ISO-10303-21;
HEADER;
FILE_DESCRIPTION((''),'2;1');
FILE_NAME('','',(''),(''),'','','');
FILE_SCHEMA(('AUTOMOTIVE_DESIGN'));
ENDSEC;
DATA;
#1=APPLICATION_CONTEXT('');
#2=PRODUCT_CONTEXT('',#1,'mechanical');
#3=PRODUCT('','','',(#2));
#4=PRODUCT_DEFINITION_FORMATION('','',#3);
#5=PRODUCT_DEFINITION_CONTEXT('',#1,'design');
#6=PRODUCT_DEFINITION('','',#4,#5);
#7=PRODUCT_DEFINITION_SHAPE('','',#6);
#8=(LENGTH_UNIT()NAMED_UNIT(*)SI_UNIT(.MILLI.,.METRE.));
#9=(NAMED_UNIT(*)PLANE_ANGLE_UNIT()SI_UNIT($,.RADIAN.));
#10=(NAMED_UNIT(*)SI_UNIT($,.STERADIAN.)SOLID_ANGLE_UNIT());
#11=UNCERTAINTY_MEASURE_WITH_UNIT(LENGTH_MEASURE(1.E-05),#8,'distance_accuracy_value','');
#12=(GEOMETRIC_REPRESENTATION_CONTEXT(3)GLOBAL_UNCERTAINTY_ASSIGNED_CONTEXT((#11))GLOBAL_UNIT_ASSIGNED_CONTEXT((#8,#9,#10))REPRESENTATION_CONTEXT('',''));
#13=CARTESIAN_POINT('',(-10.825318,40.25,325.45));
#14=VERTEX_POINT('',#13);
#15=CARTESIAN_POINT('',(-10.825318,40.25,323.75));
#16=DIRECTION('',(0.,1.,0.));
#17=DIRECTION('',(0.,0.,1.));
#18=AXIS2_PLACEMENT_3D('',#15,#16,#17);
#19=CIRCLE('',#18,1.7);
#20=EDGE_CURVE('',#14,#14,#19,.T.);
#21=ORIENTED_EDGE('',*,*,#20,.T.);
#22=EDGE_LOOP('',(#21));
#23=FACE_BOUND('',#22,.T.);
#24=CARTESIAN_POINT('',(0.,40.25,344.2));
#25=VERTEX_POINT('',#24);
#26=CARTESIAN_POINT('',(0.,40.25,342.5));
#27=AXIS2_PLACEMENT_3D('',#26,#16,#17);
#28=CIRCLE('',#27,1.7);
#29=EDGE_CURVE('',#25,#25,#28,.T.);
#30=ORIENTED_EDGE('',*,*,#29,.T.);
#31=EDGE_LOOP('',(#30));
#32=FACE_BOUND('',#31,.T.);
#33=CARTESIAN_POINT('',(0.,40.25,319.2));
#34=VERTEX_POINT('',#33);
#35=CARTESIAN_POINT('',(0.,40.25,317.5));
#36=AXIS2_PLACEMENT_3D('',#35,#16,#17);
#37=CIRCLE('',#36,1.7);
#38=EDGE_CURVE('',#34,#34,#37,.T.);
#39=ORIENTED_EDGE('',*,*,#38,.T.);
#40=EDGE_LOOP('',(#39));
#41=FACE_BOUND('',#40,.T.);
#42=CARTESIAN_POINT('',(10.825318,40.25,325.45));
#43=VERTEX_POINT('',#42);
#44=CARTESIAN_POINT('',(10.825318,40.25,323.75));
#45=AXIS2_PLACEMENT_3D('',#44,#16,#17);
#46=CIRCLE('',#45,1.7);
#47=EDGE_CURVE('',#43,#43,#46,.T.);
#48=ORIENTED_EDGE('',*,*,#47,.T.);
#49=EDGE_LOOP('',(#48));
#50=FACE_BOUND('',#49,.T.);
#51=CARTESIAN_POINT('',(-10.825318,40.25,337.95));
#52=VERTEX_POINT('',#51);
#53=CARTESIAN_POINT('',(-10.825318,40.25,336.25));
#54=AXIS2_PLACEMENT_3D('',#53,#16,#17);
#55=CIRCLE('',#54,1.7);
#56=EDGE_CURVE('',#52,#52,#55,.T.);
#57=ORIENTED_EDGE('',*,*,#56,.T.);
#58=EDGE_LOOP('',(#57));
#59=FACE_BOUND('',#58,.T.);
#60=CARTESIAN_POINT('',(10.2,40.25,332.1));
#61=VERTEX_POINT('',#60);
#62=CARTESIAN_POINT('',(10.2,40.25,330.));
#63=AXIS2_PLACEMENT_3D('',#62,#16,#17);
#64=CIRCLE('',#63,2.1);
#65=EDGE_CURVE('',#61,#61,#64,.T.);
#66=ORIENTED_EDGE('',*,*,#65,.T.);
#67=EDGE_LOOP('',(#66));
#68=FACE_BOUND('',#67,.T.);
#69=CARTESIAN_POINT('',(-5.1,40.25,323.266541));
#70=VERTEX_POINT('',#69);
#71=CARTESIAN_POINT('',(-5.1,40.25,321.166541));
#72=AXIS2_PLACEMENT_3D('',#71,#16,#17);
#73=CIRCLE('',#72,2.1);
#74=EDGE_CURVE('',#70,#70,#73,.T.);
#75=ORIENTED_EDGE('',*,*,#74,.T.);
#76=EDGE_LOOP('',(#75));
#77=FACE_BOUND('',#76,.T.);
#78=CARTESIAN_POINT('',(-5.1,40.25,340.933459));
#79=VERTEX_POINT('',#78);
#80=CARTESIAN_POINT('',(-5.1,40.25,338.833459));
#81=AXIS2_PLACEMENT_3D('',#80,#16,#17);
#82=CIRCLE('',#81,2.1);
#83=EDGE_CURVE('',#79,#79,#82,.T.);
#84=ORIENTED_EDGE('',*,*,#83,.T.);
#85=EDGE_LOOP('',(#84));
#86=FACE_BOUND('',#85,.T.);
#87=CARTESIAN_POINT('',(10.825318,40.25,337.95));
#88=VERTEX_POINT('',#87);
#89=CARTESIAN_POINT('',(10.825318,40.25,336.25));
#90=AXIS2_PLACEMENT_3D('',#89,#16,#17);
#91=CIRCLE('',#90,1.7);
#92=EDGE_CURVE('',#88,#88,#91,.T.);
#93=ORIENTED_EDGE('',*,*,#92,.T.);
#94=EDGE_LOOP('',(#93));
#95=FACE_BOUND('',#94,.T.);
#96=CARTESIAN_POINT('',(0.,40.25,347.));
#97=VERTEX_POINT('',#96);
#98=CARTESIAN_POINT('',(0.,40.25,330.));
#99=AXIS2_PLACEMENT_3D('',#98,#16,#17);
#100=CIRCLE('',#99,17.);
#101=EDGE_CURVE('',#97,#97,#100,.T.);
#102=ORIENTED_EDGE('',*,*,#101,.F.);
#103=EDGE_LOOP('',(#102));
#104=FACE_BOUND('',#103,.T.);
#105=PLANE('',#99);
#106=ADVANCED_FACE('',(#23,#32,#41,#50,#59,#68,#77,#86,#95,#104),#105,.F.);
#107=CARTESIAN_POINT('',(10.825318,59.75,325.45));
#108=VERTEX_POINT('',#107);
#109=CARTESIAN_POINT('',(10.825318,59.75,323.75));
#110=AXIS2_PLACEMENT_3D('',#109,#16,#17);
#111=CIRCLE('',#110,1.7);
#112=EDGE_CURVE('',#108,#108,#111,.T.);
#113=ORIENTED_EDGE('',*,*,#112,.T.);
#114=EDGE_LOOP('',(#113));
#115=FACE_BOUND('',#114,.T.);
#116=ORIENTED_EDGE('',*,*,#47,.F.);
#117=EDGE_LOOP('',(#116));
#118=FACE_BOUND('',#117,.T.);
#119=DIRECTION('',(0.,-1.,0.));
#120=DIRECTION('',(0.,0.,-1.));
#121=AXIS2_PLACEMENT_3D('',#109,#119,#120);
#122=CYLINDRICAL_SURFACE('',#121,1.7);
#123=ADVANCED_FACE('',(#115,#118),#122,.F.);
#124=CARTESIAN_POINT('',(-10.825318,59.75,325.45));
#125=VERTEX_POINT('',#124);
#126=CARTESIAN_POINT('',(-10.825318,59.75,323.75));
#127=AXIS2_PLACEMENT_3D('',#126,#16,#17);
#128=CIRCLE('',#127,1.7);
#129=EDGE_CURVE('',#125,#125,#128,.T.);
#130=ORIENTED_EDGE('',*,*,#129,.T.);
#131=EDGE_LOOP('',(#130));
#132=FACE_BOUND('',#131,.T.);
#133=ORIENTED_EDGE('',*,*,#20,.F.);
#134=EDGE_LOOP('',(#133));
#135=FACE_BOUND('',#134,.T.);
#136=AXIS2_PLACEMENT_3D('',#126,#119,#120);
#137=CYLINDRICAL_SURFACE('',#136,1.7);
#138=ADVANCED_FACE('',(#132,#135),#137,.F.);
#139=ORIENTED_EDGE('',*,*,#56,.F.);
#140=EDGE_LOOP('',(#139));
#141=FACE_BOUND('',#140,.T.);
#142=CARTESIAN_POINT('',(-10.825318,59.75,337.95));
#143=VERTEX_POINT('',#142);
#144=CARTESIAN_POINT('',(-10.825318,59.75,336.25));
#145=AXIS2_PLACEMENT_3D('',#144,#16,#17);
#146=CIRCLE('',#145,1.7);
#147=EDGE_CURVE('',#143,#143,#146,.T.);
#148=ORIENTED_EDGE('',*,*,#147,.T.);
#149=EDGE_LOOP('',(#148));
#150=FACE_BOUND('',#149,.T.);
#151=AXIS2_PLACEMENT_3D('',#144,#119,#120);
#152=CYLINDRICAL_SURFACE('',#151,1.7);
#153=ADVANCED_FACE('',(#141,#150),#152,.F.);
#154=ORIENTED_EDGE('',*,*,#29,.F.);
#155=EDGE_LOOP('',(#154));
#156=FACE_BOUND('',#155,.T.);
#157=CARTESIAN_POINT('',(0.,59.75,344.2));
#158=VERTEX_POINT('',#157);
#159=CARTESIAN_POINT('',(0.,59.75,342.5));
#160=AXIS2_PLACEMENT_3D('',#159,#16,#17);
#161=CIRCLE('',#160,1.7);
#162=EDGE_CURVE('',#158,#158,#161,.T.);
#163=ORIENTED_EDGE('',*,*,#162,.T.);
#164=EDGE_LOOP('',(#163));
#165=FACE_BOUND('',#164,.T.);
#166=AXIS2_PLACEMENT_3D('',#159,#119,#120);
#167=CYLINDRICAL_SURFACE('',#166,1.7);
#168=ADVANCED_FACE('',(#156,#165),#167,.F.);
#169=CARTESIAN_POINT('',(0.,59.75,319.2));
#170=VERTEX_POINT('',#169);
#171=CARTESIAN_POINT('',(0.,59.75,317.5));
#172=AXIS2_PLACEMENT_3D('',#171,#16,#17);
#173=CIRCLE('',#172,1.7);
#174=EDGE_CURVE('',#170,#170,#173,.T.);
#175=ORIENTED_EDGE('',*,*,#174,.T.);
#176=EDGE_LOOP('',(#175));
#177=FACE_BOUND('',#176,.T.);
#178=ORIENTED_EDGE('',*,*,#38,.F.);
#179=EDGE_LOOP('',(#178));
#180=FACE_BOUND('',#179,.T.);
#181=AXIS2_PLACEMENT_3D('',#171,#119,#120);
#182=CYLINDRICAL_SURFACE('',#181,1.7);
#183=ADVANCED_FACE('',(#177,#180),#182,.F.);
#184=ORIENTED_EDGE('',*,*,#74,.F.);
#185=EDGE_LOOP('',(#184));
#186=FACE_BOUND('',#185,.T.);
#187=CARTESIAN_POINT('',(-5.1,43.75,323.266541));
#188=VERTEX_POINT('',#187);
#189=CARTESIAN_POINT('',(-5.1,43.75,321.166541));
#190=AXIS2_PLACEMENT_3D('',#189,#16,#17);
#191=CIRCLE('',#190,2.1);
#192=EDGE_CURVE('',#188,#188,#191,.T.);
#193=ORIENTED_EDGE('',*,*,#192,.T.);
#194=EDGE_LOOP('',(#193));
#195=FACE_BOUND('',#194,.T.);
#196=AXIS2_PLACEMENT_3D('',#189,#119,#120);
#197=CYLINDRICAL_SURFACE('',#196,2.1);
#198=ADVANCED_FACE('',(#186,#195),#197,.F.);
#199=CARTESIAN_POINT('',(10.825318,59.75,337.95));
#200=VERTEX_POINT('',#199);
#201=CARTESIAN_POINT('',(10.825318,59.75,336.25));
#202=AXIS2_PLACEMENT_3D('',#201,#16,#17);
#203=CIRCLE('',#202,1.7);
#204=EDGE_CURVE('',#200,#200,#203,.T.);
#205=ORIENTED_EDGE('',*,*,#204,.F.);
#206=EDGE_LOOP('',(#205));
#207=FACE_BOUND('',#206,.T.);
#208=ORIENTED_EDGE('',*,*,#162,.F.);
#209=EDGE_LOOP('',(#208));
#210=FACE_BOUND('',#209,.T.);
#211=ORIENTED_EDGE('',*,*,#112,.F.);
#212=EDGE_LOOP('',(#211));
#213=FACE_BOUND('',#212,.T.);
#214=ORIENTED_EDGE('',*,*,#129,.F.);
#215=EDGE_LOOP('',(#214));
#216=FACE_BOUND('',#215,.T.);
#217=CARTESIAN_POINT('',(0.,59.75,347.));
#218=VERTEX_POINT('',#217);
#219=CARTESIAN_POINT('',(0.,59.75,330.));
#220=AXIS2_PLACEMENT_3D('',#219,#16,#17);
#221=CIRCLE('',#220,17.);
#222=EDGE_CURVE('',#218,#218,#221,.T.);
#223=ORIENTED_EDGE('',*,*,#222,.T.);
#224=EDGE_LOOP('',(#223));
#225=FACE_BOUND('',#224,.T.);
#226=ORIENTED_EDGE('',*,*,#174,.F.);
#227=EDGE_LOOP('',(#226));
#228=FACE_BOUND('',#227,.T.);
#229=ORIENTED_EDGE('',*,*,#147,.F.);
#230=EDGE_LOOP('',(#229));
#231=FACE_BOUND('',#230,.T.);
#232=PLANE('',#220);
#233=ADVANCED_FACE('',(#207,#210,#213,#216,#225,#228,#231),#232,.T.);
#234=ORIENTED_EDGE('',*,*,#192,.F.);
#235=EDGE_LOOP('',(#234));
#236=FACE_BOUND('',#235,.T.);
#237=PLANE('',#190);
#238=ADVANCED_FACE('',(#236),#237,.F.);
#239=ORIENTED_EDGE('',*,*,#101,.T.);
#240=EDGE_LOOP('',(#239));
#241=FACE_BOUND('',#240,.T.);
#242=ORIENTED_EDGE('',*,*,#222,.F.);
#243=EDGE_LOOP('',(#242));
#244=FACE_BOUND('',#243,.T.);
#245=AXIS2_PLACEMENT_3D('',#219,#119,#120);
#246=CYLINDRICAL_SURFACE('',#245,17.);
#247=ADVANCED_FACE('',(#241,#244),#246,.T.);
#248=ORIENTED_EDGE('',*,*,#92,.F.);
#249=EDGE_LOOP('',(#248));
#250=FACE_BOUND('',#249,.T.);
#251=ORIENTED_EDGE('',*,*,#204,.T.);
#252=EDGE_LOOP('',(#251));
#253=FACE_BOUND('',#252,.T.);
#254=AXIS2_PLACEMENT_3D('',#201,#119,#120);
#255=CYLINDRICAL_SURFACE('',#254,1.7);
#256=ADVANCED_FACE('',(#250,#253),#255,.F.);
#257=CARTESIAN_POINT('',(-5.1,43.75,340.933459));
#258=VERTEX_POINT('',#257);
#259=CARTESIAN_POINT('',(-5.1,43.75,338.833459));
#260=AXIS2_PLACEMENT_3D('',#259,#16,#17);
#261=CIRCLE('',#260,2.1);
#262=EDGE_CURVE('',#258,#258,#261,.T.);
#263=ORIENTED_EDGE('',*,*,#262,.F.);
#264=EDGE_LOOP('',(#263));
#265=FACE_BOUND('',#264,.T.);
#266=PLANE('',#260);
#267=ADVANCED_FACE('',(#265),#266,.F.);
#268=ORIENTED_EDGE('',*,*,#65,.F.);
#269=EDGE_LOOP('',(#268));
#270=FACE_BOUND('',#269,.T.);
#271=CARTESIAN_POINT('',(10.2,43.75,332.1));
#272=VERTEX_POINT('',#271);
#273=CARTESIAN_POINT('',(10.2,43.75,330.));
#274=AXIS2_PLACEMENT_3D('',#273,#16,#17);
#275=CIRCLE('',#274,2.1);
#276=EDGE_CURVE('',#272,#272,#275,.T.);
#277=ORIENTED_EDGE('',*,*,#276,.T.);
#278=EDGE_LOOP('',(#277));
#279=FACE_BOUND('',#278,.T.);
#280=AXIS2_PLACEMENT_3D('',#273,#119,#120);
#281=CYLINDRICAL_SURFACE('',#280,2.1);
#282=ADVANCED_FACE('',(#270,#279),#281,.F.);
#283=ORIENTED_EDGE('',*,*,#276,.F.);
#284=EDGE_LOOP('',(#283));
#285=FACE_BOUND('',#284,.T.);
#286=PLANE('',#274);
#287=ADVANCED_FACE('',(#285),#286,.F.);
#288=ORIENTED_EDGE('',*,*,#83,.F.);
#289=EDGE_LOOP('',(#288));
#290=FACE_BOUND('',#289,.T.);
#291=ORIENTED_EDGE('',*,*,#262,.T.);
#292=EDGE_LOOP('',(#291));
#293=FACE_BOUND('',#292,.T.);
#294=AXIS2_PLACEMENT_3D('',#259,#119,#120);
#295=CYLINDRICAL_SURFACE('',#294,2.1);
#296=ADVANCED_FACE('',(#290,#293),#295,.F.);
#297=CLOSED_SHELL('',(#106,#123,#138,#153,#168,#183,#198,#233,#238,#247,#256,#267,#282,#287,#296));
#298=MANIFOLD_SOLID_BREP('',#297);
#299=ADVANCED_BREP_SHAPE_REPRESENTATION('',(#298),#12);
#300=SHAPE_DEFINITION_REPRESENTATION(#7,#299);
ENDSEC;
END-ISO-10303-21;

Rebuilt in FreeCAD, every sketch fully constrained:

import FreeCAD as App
import Part
import Sketcher
Q = App.Units.Quantity

doc = App.newDocument("Part")
params = doc.addObject("Spreadsheet::Sheet", "Params")
for row, (alias, value) in enumerate([
    ("sketch1_diameter", "34 mm"),
    ("pad1_length", "19.5 mm"),
    ("sketch2_diameter", "3.4 mm"),
    ("pocket1_length", "19.5 mm"),
    ("sketch3_diameter", "4.2 mm"),
    ("pocket2_length", "3.5 mm"),
], start=1):
    params.set(f"A{row}", alias)
    params.set(f"B{row}", "=" + value)
    params.setAlias(f"B{row}", alias)

body = doc.addObject("PartDesign::Body", "Body")

# Sketch on XZ plane
sketch1 = body.newObject("Sketcher::SketchObject", "Sketch")
sketch1.AttachmentSupport = (doc.getObject("XZ_Plane"), [""])
sketch1.MapMode = "FlatFace"
sketch1.AttachmentOffset = App.Placement(App.Vector(0, 0, -40.25), App.Rotation())
sketch1.addGeometry(Part.Circle(App.Vector(0, 330, 0), App.Vector(0, 0, 1), 17), False)
sketch1.addConstraint(Sketcher.Constraint("PointOnObject", 0, 3, -2))
sketch1.addConstraint(Sketcher.Constraint("Diameter", 0, Q("34 mm")))
sketch1.addConstraint(Sketcher.Constraint("DistanceY", -1, 1, 0, 3, Q("330 mm")))
sketch1.setExpression("Constraints[1]", "Params.sketch1_diameter")
pad1 = body.newObject("PartDesign::Pad", "Pad")
pad1.Profile = sketch1
pad1.setExpression("Length", "Params.pad1_length")
pad1.Reversed = True

# Sketch on XZ plane
sketch2 = body.newObject("Sketcher::SketchObject", "Sketch001")
sketch2.AttachmentSupport = (doc.getObject("XZ_Plane"), [""])
sketch2.MapMode = "FlatFace"
sketch2.AttachmentOffset = App.Placement(App.Vector(0, 0, -40.25), App.Rotation())
sketch2.addGeometry(Part.Circle(App.Vector(10.8, 336.2, 0), App.Vector(0, 0, 1), 1.7), False)
sketch2.addGeometry(Part.Circle(App.Vector(0, 342.5, 0), App.Vector(0, 0, 1), 1.7), False)
sketch2.addGeometry(Part.Circle(App.Vector(-10.8, 336.2, 0), App.Vector(0, 0, 1), 1.7), False)
sketch2.addGeometry(Part.Circle(App.Vector(-10.8, 323.8, 0), App.Vector(0, 0, 1), 1.7), False)
sketch2.addGeometry(Part.Circle(App.Vector(0, 317.5, 0), App.Vector(0, 0, 1), 1.7), False)
sketch2.addGeometry(Part.Circle(App.Vector(10.8, 323.8, 0), App.Vector(0, 0, 1), 1.7), False)
sketch2.addConstraint(Sketcher.Constraint("Equal", 0, 1))
sketch2.addConstraint(Sketcher.Constraint("Equal", 1, 2))
sketch2.addConstraint(Sketcher.Constraint("Equal", 2, 3))
sketch2.addConstraint(Sketcher.Constraint("Equal", 3, 4))
sketch2.addConstraint(Sketcher.Constraint("Equal", 4, 5))
sketch2.addConstraint(Sketcher.Constraint("Symmetric", 0, 3, 2, 3, -2))
sketch2.addConstraint(Sketcher.Constraint("Symmetric", 3, 3, 5, 3, -2))
sketch2.addConstraint(Sketcher.Constraint("PointOnObject", 1, 3, -2))
sketch2.addConstraint(Sketcher.Constraint("PointOnObject", 4, 3, -2))
sketch2.addConstraint(Sketcher.Constraint("Vertical", 2, 3, 3, 3))
sketch2.addConstraint(Sketcher.Constraint("Diameter", 0, Q("3.4 mm")))
sketch2.addConstraint(Sketcher.Constraint("DistanceY", 4, 3, 1, 3, Q("25 mm")))
sketch2.addConstraint(Sketcher.Constraint("DistanceY", -1, 1, 1, 3, Q("342.5 mm")))
sketch2.addConstraint(Sketcher.Constraint("DistanceY", 3, 3, 2, 3, Q("12.5 mm")))
sketch2.addConstraint(Sketcher.Constraint("DistanceY", -1, 1, 0, 3, Q("336.25 mm")))
sketch2.addConstraint(Sketcher.Constraint("DistanceX", -1, 1, 0, 3, Q("10.825318 mm")))
sketch2.setExpression("Constraints[10]", "Params.sketch2_diameter")
pocket1 = body.newObject("PartDesign::Pocket", "Pocket")
pocket1.Profile = sketch2
pocket1.setExpression("Length", "Params.pocket1_length")

# Sketch on XZ plane
sketch3 = body.newObject("Sketcher::SketchObject", "Sketch002")
sketch3.AttachmentSupport = (doc.getObject("XZ_Plane"), [""])
sketch3.MapMode = "FlatFace"
sketch3.AttachmentOffset = App.Placement(App.Vector(0, 0, -40.25), App.Rotation())
sketch3.addGeometry(Part.Circle(App.Vector(10.2, 330, 0), App.Vector(0, 0, 1), 2.1), False)
sketch3.addGeometry(Part.Circle(App.Vector(-5.1, 338.8, 0), App.Vector(0, 0, 1), 2.1), False)
sketch3.addGeometry(Part.Circle(App.Vector(-5.1, 321.2, 0), App.Vector(0, 0, 1), 2.1), False)
sketch3.addConstraint(Sketcher.Constraint("Equal", 0, 1))
sketch3.addConstraint(Sketcher.Constraint("Equal", 1, 2))
sketch3.addConstraint(Sketcher.Constraint("Vertical", 1, 3, 2, 3))
sketch3.addConstraint(Sketcher.Constraint("Diameter", 0, Q("4.2 mm")))
sketch3.addConstraint(Sketcher.Constraint("DistanceY", -1, 1, 0, 3, Q("330 mm")))
sketch3.addConstraint(Sketcher.Constraint("DistanceX", -1, 1, 0, 3, Q("10.2 mm")))
sketch3.addConstraint(Sketcher.Constraint("DistanceX", 1, 3, -1, 1, Q("5.1 mm")))
sketch3.addConstraint(Sketcher.Constraint("DistanceY", -1, 1, 1, 3, Q("338.833459 mm")))
sketch3.addConstraint(Sketcher.Constraint("DistanceY", -1, 1, 2, 3, Q("321.166541 mm")))
sketch3.setExpression("Constraints[3]", "Params.sketch3_diameter")
pocket2 = body.newObject("PartDesign::Pocket", "Pocket001")
pocket2.Profile = sketch3
pocket2.setExpression("Length", "Params.pocket2_length")

doc.recompute()
